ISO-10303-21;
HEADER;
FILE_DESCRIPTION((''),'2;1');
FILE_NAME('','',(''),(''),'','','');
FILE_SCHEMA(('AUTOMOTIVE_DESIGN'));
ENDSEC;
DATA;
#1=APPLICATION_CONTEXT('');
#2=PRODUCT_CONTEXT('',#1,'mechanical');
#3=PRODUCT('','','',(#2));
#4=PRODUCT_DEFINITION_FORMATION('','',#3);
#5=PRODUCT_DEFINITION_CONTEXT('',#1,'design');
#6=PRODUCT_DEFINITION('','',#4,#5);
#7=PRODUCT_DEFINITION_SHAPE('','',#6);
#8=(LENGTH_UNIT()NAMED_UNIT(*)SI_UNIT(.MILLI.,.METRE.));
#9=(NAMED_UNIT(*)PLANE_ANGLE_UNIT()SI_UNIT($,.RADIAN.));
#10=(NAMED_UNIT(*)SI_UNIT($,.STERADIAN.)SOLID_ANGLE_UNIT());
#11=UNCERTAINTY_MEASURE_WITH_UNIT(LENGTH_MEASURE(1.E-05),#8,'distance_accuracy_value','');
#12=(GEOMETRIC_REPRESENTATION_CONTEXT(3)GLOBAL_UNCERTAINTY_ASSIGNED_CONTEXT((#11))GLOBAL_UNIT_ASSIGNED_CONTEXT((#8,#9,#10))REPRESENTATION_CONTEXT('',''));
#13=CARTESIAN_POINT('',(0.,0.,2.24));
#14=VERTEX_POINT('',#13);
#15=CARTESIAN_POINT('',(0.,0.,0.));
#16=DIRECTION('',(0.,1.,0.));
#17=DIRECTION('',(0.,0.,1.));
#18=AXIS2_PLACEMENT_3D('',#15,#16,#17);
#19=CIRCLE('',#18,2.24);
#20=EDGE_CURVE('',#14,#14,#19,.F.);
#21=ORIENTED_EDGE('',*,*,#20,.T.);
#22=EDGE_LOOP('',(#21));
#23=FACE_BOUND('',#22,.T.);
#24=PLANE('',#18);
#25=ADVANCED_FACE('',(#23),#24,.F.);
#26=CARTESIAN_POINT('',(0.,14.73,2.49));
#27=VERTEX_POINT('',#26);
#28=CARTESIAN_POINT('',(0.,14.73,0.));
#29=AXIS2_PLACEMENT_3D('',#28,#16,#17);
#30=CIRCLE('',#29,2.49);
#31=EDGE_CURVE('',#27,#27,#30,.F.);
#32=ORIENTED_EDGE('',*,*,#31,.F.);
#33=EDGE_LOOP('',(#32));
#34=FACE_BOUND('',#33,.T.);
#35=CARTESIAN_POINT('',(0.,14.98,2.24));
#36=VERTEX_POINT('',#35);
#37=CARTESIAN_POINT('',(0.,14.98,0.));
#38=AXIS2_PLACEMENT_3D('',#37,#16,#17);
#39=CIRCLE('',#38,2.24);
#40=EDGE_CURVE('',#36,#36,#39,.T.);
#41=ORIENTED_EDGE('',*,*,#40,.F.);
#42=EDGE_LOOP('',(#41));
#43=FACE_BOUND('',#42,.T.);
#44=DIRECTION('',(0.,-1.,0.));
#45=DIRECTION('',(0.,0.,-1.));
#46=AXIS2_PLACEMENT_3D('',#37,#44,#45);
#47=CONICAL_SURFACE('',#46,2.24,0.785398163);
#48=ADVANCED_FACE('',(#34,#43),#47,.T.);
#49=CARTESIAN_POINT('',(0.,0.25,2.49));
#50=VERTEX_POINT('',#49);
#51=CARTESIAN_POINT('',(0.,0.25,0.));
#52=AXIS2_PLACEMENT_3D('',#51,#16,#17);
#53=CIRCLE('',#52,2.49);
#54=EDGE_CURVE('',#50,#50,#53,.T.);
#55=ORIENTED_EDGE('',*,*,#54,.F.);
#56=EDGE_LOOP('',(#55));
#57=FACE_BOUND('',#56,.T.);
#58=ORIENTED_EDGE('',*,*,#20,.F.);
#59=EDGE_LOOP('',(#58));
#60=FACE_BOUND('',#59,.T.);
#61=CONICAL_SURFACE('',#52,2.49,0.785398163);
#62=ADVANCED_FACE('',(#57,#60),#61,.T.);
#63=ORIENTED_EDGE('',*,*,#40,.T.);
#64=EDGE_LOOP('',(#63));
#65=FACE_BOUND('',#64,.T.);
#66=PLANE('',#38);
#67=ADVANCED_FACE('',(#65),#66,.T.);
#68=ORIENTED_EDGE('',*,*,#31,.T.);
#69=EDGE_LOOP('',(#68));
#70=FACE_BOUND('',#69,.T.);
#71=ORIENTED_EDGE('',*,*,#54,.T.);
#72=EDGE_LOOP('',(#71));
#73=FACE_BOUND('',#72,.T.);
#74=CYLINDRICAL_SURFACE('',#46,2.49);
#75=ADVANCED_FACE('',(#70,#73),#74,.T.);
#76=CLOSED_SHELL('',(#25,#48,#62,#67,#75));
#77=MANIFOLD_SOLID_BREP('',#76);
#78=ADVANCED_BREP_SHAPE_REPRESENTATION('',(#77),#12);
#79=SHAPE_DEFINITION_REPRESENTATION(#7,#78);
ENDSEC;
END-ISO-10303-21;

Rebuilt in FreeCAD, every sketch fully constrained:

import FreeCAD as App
import Part
import Sketcher
from FreeCAD import Vector


def edges_at(feature, points):
    """Names of the edges that pass closest to the given points."""
    edges = feature.Shape.Edges
    near = lambda p: min(range(len(edges)), key=lambda i: edges[i].distToShape(Part.Vertex(*p))[0])
    return sorted({f"Edge{near(p) + 1}" for p in points})

doc = App.newDocument("Part")
params = doc.addObject("Spreadsheet::Sheet", "Params")
for row, (alias, value) in enumerate([
    ("sketch1_diameter", "4.98 mm"),
    ("pad1_length", "14.98 mm"),
    ("chamfer_size", "0.25 mm"),
], start=1):
    params.set(f"A{row}", alias)
    params.set(f"B{row}", "=" + value)
    params.setAlias(f"B{row}", alias)

body = doc.addObject("PartDesign::Body", "Body")

# Sketch on XZ plane
sketch1 = doc.addObject("Sketcher::SketchObject", "Sketch")
body.addObject(sketch1)
sketch1.AttachmentSupport = (doc.XZ_Plane, [""])
sketch1.MapMode = "FlatFace"
sketch1.addGeometry(Part.Circle(Vector(0, 0, 0), Vector(0, 0, 1), 2.5), False)
sketch1.addConstraint(Sketcher.Constraint("Coincident", 0, 3, -1, 1))
sketch1.addConstraint(Sketcher.Constraint("Diameter", 0, 4.98))
sketch1.setExpression("Constraints[1]", "Params.sketch1_diameter")
pad1 = doc.addObject("PartDesign::Pad", "Pad")
body.addObject(pad1)
pad1.Profile = sketch1
pad1.setExpression("Length", "Params.pad1_length")
pad1.Reversed = True
doc.recompute()

chamfer = doc.addObject("PartDesign::Chamfer", "Chamfer")
body.addObject(chamfer)
chamfer.Base = (pad1, edges_at(pad1, [(-2.49, 0, 0), (-2.49, 14.98, 0)]))
chamfer.setExpression("Size", "Params.chamfer_size")

doc.recompute()
